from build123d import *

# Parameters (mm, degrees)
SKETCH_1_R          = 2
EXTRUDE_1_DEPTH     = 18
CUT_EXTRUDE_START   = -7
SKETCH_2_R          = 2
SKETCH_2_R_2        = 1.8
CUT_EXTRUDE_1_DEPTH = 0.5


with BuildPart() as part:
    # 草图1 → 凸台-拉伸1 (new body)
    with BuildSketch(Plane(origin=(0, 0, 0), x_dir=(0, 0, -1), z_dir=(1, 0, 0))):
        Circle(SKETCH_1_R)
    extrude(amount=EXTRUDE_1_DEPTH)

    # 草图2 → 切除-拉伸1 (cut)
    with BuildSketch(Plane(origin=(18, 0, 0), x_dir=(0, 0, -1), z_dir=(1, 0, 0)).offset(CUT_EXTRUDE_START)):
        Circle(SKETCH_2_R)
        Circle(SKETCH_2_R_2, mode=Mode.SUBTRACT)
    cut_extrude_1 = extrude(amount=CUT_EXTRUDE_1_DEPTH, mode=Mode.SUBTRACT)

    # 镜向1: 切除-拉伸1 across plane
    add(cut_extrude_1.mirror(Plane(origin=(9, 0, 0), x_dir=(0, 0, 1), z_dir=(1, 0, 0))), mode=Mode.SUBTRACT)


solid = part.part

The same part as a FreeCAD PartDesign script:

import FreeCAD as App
import Part
import Sketcher
from FreeCAD import Vector

doc = App.newDocument("Part")
body = doc.addObject("PartDesign::Body", "Body")

sketch1 = doc.addObject("Sketcher::SketchObject", "Sketch")
body.addObject(sketch1)
sketch1.AttachmentSupport = (doc.YZ_Plane, [""])
sketch1.MapMode = "FlatFace"
sketch1.addGeometry(Part.Circle(Vector(0, 0, 0), Vector(0, 0, 1), 2), False)
sketch1.addConstraint(Sketcher.Constraint("Coincident", 0, 3, -1, 1))
sketch1.addConstraint(Sketcher.Constraint("Diameter", 0, 4.0))
pad1 = doc.addObject("PartDesign::Pad", "Pad")
body.addObject(pad1)
pad1.Profile = sketch1
pad1.Length = 18

sketch2 = doc.addObject("Sketcher::SketchObject", "Sketch001")
body.addObject(sketch2)
sketch2.AttachmentSupport = (doc.YZ_Plane, [""])
sketch2.MapMode = "FlatFace"
sketch2.AttachmentOffset = App.Placement(Vector(0, 0, 11), App.Rotation())
sketch2.addGeometry(Part.Circle(Vector(0, 0, 0), Vector(0, 0, 1), 2), False)
sketch2.addGeometry(Part.Circle(Vector(0, 0, 0), Vector(0, 0, 1), 1.8), False)
sketch2.addConstraint(Sketcher.Constraint("Coincident", 0, 3, -1, 1))
sketch2.addConstraint(Sketcher.Constraint("Coincident", 1, 3, -1, 1))
sketch2.addConstraint(Sketcher.Constraint("Diameter", 0, 4.0))
sketch2.addConstraint(Sketcher.Constraint("Diameter", 1, 3.6))
pocket1 = doc.addObject("PartDesign::Pocket", "Pocket")
body.addObject(pocket1)
pocket1.Profile = sketch2
pocket1.Length = 0.5
pocket1.Reversed = True
doc.recompute()

datumplane = doc.addObject("PartDesign::Plane", "DatumPlane")
body.addObject(datumplane)
datumplane.AttachmentSupport = (doc.YZ_Plane, [""])
datumplane.MapMode = "FlatFace"
datumplane.AttachmentOffset = App.Placement(Vector(0, 0, 9), App.Rotation())
mirrored = doc.addObject("PartDesign::Mirrored", "Mirrored")
body.addObject(mirrored)
mirrored.Originals = [pocket1]
mirrored.MirrorPlane = (datumplane, [""])
body.Tip = mirrored

doc.recompute()
